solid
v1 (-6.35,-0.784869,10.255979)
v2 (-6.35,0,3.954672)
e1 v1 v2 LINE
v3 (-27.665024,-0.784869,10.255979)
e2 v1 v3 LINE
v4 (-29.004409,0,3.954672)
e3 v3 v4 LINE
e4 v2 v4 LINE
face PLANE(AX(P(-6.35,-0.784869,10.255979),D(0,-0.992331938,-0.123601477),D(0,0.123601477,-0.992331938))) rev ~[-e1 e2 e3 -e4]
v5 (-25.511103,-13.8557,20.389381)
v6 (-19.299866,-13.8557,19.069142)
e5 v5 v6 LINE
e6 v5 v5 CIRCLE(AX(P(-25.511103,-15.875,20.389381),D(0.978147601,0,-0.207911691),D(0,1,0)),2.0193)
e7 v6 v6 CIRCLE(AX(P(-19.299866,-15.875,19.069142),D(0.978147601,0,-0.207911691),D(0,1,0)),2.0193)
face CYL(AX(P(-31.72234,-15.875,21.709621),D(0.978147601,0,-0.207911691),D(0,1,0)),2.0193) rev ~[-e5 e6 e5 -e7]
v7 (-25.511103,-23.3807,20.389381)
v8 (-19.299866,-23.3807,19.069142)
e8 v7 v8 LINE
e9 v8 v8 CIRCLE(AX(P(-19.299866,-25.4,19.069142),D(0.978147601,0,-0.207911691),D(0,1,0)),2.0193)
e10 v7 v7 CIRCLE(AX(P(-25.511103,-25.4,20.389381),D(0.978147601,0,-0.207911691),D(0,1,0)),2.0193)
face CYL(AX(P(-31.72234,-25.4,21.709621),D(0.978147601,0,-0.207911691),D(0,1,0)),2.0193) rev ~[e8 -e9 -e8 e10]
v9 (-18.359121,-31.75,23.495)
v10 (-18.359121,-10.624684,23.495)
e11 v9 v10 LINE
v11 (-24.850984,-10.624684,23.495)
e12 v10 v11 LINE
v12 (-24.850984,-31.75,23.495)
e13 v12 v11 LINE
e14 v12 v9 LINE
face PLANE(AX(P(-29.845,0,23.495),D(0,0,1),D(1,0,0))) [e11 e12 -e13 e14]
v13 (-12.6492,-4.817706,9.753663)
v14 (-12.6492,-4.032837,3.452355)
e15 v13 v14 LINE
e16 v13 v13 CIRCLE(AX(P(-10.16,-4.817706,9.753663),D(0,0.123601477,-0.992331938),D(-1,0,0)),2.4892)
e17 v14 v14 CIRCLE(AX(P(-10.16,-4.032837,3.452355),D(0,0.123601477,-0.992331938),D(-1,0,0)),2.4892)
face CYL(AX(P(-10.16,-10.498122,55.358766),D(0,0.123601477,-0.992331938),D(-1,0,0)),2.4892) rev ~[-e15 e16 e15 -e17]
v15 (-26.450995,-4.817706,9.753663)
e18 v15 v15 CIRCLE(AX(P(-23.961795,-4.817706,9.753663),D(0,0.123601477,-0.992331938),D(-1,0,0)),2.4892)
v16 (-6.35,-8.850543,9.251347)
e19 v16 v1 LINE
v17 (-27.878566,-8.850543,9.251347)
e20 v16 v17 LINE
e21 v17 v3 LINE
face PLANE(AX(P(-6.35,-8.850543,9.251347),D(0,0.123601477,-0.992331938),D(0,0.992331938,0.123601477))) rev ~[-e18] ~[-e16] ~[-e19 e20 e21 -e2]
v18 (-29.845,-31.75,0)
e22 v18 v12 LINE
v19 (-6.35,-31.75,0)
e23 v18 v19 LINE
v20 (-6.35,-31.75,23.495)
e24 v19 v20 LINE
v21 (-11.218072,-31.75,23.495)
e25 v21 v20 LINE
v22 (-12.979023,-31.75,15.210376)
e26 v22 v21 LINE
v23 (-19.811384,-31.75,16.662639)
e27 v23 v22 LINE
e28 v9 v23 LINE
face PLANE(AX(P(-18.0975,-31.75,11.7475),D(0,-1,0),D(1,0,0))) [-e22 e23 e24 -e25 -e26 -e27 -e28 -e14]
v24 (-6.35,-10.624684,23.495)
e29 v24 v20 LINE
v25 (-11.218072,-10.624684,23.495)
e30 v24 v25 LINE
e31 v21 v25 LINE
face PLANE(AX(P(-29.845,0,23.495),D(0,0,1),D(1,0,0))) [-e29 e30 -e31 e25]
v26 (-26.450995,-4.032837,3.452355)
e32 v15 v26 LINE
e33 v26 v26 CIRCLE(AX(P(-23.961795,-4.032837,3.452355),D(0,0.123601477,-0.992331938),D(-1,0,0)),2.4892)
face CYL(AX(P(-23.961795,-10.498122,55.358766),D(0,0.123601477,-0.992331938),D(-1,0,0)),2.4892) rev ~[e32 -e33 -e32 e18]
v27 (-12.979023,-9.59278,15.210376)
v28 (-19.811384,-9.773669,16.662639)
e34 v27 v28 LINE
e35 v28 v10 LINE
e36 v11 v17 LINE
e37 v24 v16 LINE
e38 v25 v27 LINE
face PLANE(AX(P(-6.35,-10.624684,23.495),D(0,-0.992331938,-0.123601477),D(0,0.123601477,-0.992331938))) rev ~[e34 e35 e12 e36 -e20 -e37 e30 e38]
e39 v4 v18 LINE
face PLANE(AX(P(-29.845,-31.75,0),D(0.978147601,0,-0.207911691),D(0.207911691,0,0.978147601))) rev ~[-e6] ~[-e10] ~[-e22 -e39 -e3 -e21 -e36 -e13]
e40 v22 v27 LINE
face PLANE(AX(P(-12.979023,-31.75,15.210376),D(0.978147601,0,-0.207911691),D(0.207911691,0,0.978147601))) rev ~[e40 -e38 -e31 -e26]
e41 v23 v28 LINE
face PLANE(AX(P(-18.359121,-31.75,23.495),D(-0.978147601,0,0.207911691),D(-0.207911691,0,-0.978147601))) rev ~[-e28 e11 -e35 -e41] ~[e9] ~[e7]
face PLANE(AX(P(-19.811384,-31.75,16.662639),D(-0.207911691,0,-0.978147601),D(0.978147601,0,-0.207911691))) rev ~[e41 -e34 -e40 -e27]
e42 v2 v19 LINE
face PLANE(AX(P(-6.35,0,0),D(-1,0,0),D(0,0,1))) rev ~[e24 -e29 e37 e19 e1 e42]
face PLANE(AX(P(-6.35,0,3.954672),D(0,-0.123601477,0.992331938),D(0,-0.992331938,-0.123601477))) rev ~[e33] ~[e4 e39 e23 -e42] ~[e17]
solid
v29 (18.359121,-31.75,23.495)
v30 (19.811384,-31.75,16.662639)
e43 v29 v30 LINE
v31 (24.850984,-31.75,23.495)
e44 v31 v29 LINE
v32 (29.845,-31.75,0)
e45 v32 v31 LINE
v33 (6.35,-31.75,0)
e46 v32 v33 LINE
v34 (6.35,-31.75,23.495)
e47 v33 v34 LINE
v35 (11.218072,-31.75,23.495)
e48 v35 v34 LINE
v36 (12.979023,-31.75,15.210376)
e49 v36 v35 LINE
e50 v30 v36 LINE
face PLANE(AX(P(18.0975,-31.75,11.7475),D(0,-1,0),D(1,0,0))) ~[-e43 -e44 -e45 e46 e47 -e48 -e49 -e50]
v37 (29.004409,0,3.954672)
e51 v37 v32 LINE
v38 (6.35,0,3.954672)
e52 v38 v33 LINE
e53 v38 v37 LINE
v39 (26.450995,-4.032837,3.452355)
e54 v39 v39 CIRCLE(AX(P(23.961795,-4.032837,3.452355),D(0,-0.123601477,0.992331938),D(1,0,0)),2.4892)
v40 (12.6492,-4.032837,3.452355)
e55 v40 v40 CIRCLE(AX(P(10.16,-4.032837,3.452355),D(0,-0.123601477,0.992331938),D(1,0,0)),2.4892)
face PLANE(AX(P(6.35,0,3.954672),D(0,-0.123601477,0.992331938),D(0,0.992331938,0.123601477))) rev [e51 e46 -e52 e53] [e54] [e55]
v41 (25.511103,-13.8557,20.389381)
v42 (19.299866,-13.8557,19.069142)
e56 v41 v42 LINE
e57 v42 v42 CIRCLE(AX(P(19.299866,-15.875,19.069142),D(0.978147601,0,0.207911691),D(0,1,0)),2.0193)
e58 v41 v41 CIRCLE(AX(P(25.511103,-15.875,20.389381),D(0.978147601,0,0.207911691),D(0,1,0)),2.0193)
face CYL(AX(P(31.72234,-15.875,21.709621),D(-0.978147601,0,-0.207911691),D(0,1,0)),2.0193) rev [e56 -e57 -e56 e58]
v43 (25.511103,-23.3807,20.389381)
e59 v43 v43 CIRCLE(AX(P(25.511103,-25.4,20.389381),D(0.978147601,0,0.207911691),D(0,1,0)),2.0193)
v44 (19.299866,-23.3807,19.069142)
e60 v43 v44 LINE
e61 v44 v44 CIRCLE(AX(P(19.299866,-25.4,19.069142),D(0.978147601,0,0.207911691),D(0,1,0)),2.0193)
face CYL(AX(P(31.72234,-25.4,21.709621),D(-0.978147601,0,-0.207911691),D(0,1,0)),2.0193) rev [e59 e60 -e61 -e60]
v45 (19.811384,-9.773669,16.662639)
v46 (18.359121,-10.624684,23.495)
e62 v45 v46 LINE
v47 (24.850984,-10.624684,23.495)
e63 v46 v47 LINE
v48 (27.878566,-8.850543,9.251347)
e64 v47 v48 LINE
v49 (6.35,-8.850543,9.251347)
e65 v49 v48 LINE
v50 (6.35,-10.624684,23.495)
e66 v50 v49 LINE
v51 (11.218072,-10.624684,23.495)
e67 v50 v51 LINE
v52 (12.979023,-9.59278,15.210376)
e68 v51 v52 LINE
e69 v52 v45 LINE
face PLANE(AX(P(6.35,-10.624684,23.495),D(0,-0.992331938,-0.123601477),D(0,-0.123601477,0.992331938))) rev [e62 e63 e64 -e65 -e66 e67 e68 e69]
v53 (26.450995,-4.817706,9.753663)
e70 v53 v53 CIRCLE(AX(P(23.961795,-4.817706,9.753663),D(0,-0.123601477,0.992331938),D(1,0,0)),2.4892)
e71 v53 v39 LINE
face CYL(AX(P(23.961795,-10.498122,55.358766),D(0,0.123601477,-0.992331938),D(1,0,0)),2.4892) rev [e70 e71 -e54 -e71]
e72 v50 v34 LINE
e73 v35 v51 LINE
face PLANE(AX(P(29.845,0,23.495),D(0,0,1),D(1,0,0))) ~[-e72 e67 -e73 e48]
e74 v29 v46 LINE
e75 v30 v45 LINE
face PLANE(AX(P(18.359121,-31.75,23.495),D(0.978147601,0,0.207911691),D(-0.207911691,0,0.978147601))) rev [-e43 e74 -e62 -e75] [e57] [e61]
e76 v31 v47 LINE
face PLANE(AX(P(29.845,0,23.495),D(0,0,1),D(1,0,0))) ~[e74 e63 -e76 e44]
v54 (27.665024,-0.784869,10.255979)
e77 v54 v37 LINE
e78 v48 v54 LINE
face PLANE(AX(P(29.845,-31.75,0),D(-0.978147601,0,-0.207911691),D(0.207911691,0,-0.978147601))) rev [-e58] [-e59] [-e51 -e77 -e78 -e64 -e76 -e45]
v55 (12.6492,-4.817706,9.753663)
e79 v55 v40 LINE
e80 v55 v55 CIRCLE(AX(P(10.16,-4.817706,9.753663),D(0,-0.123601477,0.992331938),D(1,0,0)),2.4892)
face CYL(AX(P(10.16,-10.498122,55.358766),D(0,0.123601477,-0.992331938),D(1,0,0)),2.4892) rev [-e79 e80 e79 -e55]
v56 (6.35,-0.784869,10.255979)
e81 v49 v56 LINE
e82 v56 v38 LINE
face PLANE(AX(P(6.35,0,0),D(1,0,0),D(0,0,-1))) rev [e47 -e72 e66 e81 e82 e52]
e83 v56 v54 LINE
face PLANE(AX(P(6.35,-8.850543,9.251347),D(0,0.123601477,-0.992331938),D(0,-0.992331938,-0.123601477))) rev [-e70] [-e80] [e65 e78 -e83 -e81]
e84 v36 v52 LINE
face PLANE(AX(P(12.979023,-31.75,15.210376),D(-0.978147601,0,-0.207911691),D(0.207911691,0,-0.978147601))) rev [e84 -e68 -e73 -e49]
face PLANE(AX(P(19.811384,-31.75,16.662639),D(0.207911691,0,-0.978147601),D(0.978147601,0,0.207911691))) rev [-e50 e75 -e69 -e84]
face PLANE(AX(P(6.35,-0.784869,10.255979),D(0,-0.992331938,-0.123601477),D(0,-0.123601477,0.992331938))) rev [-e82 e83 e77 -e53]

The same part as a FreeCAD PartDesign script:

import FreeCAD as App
import Part
import Sketcher
from FreeCAD import Vector
Q = App.Units.Quantity


def add_polygon(sketch, points):
    """Adds a closed chain of lines whose ends are joined by coincident constraints."""
    first, n = sketch.GeometryCount, len(points)
    for a, b in zip(points, points[1:] + points[:1]):
        sketch.addGeometry(Part.LineSegment(App.Vector(*a, 0), App.Vector(*b, 0)), False)
    for i in range(n):
        sketch.addConstraint(Sketcher.Constraint("Coincident", first + i, 2, first + (i + 1) % n, 1))

doc = App.newDocument("Part")
params = doc.addObject("Spreadsheet::Sheet", "Params")
for row, (alias, value) in enumerate([
    ("sketch1_width", "0.925 in"),
    ("pad1_length", "1.25 in"),
    ("sketch2_height", "0.925 in"),
    ("sketch3_length", "0.275 in"),
    ("sketch4_diameter", "0.159 in"),
    ("hole_diameter", "0.159 in"),
    ("hole_depth", "0.25 in"),
    ("sketch5_width", "1.25 in"),
    ("sketch5_length", "0.25 in"),
    ("sketch5_length2", "0.32 in"),
    ("sketch6_diameter", "0.196 in"),
    ("hole2_diameter", "0.196 in"),
], start=1):
    params.set(f"A{row}", alias)
    params.set(f"B{row}", "=" + value)
    params.setAlias(f"B{row}", alias)

body = doc.addObject("PartDesign::Body", "Body")

sketch1 = body.newObject("Sketcher::SketchObject", "Sketch")
sketch1.AttachmentSupport = (doc.getObject("XZ_Plane"), [""])
sketch1.MapMode = "FlatFace"
add_polygon(sketch1, [(-29.845, 23.495), (-29.845, 0), (-6.35, 0), (-6.35, 23.495)])
sketch1.addConstraint([
    Sketcher.Constraint("Vertical", 0),
    Sketcher.Constraint("Horizontal", 1),
    Sketcher.Constraint("Vertical", 2),
    Sketcher.Constraint("Horizontal", 3),
    Sketcher.Constraint("PointOnObject", 0, 2, -1),
    Sketcher.Constraint("Equal", 3, 0),
    Sketcher.Constraint("DistanceX", 1, 1, 1, 2, Q("0.925 in")),
    Sketcher.Constraint("DistanceX", 1, 2, -1, 1, Q("0.25 in")),
])
sketch1.setExpression("Constraints[10]", "Params.sketch1_width")
pad1 = body.newObject("PartDesign::Pad", "Pad")
pad1.Profile = sketch1
pad1.setExpression("Length", "Params.pad1_length")

sketch2 = body.newObject("Sketcher::SketchObject", "Sketch001")
sketch2.AttachmentSupport = (doc.getObject("XZ_Plane"), [""])
sketch2.MapMode = "FlatFace"
sketch2.AttachmentOffset = App.Placement(Vector(0, 0, 1.25 * 25.4), App.Rotation())
add_polygon(sketch2, [(-29.845, 23.495), (-29.845, 0), (-24.850984, 23.495)])
sketch2.addConstraint([
    Sketcher.Constraint("Vertical", 0),
    Sketcher.Constraint("Horizontal", 2),
    Sketcher.Constraint("PointOnObject", 0, 2, -1),
    Sketcher.Constraint("Angle", 1, Q("78 deg")),
    Sketcher.Constraint("DistanceY", 0, 2, 0, 1, Q("0.925 in")),
    Sketcher.Constraint("DistanceX", 0, 2, -1, 1, Q("1.175 in")),
])
sketch2.setExpression("Constraints[7]", "Params.sketch2_height")
pocket1 = body.newObject("PartDesign::Pocket", "Pocket")
pocket1.Profile = sketch2
pocket1.Type = "ThroughAll"

sketch3 = body.newObject("Sketcher::SketchObject", "Sketch002")
sketch3.AttachmentSupport = (doc.getObject("XZ_Plane"), [""])
sketch3.MapMode = "FlatFace"
sketch3.AttachmentOffset = App.Placement(Vector(0, 0, 1.25 * 25.4), App.Rotation())
add_polygon(sketch3, [(-11.218072, 23.495), (-18.359121, 23.495), (-19.811384, 16.662639), (-12.979023, 15.210376)])
sketch3.addConstraint([
    Sketcher.Constraint("Horizontal", 0),
    Sketcher.Constraint("Perpendicular", 1, 2),
    Sketcher.Constraint("Perpendicular", 2, 3),
    Sketcher.Constraint("Equal", 1, 2),
    Sketcher.Constraint("Angle", 1, Q("-102 deg")),
    Sketcher.Constraint("Distance", 1, Q("0.275 in")),
    Sketcher.Constraint("DistanceY", -1, 1, 0, 2, Q("0.925 in")),
    Sketcher.Constraint("DistanceX", 0, 2, -1, 1, Q("0.7228 in")),
])
sketch3.setExpression("Constraints[9]", "Params.sketch3_length")
pocket2 = body.newObject("PartDesign::Pocket", "Pocket001")
pocket2.Profile = sketch3
pocket2.Type = "ThroughAll"

sketch4 = body.newObject("Sketcher::SketchObject", "Sketch003")
sketch4.Placement = App.Placement(Vector(-28.554882, 0, 6.069528), App.Rotation(Vector(0, -1, 0), Vector(0.207911691, 0, 0.978147601), Vector(-0.978147601, 0, 0.207911691), "ZXY"))
sketch4.addGeometry([
    Part.Circle(Vector(25.4, 14.639768, 0), Vector(0, 0, 1), 2.0193),
    Part.Circle(Vector(15.875, 14.639768, 0), Vector(0, 0, 1), 2.0193),
], False)
sketch4.addConstraint([
    Sketcher.Constraint("Equal", 0, 1),
    Sketcher.Constraint("Horizontal", 0, 3, 1, 3),
    Sketcher.Constraint("Diameter", 0, Q("0.159 in")),
    Sketcher.Constraint("DistanceX", -1, 1, 0, 3, Q("1 in")),
    Sketcher.Constraint("DistanceX", -1, 1, 1, 3, Q("0.625 in")),
    Sketcher.Constraint("DistanceY", -1, 1, 0, 3, 14.639768),
])
sketch4.setExpression("Constraints[2]", "Params.sketch4_diameter")
doc.recompute()
hole = body.newObject("PartDesign::Hole", "Hole")
hole.Profile = sketch4
hole.ThreadType = "None"
hole.setExpression("Diameter", "Params.hole_diameter")
hole.DepthType = "Dimension"
hole.setExpression("Depth", "Params.hole_depth")
hole.DrillPoint = "Angled"
hole.DrillPointAngle = 118

sketch5 = body.newObject("Sketcher::SketchObject", "Sketch004")
sketch5.AttachmentSupport = (doc.getObject("YZ_Plane"), [""])
sketch5.MapMode = "FlatFace"
sketch5.AttachmentOffset = App.Placement(Vector(0, 0, -0.25 * 25.4), App.Rotation())
add_polygon(sketch5, [(-0.784869, 10.255979), (0, 3.954672), (0, 23.495), (-10.624684, 23.495), (-8.850543, 9.251347)])
add_polygon(sketch5, [(0, 3.954672), (-31.75, 0), (0, 0)])
sketch5.addConstraint([
    Sketcher.Constraint("Vertical", 1),
    Sketcher.Constraint("Horizontal", 2),
    Sketcher.Constraint("Horizontal", 6),
    Sketcher.Constraint("Vertical", 7),
    Sketcher.Constraint("Coincident", 6, 2, -1, 1),
    Sketcher.Constraint("Coincident", 7, 2, 0, 2),
    Sketcher.Constraint("Parallel", 0, 3),
    Sketcher.Constraint("Perpendicular", 3, 4),
    Sketcher.Constraint("Parallel", 4, 5),
    Sketcher.Constraint("DistanceX", 6, 1, 6, 2, Q("1.25 in")),
    Sketcher.Constraint("Angle", 0, Q("-82.9 deg")),
    Sketcher.Constraint("Distance", 0, Q("0.25 in")),
    Sketcher.Constraint("Distance", 4, Q("0.32 in")),
    Sketcher.Constraint("DistanceY", -1, 1, 1, 2, Q("0.925 in")),
])
sketch5.setExpression("Constraints[17]", "Params.sketch5_width")
sketch5.setExpression("Constraints[19]", "Params.sketch5_length")
sketch5.setExpression("Constraints[20]", "Params.sketch5_length2")
pocket3 = body.newObject("PartDesign::Pocket", "Pocket002")
pocket3.Profile = sketch5
pocket3.Type = "ThroughAll"

sketch6 = body.newObject("Sketcher::SketchObject", "Sketch005")
sketch6.Placement = App.Placement(Vector(0, -1.269924, 10.195563), App.Rotation(Vector(1, 0, 0), Vector(0, 0.992331938, 0.123601477), Vector(0, -0.123601477, 0.992331938), "ZXY"))
sketch6.addGeometry([
    Part.Circle(Vector(-23.961795, -3.575197, 0), Vector(0, 0, 1), 2.4892),
    Part.Circle(Vector(-10.16, -3.575197, 0), Vector(0, 0, 1), 2.4892),
], False)
sketch6.addConstraint([
    Sketcher.Constraint("Equal", 0, 1),
    Sketcher.Constraint("Horizontal", 0, 3, 1, 3),
    Sketcher.Constraint("Diameter", 0, Q("0.196 in")),
    Sketcher.Constraint("DistanceX", 1, 3, -1, 1, Q("0.4 in")),
    Sketcher.Constraint("DistanceX", 0, 3, -1, 1, 23.961795),
    Sketcher.Constraint("DistanceY", 0, 3, -1, 1, 3.575197),
])
sketch6.setExpression("Constraints[2]", "Params.sketch6_diameter")
doc.recompute()
hole2 = body.newObject("PartDesign::Hole", "Hole001")
hole2.Profile = sketch6
hole2.ThreadType = "None"
hole2.setExpression("Diameter", "Params.hole2_diameter")
hole2.DepthType = "ThroughAll"
body2 = doc.addObject("PartDesign::Body", "Body001")
doc.recompute()

mirroring = doc.addObject("Part::Mirroring", "Mirroring")
mirroring.Source = body
mirroring.Base = Vector(0, 0, 0)
mirroring.Normal = Vector(1, 0, 0)
body2.BaseFeature = mirroring
doc.recompute()
mirroring.Visibility = False

doc.recompute()
